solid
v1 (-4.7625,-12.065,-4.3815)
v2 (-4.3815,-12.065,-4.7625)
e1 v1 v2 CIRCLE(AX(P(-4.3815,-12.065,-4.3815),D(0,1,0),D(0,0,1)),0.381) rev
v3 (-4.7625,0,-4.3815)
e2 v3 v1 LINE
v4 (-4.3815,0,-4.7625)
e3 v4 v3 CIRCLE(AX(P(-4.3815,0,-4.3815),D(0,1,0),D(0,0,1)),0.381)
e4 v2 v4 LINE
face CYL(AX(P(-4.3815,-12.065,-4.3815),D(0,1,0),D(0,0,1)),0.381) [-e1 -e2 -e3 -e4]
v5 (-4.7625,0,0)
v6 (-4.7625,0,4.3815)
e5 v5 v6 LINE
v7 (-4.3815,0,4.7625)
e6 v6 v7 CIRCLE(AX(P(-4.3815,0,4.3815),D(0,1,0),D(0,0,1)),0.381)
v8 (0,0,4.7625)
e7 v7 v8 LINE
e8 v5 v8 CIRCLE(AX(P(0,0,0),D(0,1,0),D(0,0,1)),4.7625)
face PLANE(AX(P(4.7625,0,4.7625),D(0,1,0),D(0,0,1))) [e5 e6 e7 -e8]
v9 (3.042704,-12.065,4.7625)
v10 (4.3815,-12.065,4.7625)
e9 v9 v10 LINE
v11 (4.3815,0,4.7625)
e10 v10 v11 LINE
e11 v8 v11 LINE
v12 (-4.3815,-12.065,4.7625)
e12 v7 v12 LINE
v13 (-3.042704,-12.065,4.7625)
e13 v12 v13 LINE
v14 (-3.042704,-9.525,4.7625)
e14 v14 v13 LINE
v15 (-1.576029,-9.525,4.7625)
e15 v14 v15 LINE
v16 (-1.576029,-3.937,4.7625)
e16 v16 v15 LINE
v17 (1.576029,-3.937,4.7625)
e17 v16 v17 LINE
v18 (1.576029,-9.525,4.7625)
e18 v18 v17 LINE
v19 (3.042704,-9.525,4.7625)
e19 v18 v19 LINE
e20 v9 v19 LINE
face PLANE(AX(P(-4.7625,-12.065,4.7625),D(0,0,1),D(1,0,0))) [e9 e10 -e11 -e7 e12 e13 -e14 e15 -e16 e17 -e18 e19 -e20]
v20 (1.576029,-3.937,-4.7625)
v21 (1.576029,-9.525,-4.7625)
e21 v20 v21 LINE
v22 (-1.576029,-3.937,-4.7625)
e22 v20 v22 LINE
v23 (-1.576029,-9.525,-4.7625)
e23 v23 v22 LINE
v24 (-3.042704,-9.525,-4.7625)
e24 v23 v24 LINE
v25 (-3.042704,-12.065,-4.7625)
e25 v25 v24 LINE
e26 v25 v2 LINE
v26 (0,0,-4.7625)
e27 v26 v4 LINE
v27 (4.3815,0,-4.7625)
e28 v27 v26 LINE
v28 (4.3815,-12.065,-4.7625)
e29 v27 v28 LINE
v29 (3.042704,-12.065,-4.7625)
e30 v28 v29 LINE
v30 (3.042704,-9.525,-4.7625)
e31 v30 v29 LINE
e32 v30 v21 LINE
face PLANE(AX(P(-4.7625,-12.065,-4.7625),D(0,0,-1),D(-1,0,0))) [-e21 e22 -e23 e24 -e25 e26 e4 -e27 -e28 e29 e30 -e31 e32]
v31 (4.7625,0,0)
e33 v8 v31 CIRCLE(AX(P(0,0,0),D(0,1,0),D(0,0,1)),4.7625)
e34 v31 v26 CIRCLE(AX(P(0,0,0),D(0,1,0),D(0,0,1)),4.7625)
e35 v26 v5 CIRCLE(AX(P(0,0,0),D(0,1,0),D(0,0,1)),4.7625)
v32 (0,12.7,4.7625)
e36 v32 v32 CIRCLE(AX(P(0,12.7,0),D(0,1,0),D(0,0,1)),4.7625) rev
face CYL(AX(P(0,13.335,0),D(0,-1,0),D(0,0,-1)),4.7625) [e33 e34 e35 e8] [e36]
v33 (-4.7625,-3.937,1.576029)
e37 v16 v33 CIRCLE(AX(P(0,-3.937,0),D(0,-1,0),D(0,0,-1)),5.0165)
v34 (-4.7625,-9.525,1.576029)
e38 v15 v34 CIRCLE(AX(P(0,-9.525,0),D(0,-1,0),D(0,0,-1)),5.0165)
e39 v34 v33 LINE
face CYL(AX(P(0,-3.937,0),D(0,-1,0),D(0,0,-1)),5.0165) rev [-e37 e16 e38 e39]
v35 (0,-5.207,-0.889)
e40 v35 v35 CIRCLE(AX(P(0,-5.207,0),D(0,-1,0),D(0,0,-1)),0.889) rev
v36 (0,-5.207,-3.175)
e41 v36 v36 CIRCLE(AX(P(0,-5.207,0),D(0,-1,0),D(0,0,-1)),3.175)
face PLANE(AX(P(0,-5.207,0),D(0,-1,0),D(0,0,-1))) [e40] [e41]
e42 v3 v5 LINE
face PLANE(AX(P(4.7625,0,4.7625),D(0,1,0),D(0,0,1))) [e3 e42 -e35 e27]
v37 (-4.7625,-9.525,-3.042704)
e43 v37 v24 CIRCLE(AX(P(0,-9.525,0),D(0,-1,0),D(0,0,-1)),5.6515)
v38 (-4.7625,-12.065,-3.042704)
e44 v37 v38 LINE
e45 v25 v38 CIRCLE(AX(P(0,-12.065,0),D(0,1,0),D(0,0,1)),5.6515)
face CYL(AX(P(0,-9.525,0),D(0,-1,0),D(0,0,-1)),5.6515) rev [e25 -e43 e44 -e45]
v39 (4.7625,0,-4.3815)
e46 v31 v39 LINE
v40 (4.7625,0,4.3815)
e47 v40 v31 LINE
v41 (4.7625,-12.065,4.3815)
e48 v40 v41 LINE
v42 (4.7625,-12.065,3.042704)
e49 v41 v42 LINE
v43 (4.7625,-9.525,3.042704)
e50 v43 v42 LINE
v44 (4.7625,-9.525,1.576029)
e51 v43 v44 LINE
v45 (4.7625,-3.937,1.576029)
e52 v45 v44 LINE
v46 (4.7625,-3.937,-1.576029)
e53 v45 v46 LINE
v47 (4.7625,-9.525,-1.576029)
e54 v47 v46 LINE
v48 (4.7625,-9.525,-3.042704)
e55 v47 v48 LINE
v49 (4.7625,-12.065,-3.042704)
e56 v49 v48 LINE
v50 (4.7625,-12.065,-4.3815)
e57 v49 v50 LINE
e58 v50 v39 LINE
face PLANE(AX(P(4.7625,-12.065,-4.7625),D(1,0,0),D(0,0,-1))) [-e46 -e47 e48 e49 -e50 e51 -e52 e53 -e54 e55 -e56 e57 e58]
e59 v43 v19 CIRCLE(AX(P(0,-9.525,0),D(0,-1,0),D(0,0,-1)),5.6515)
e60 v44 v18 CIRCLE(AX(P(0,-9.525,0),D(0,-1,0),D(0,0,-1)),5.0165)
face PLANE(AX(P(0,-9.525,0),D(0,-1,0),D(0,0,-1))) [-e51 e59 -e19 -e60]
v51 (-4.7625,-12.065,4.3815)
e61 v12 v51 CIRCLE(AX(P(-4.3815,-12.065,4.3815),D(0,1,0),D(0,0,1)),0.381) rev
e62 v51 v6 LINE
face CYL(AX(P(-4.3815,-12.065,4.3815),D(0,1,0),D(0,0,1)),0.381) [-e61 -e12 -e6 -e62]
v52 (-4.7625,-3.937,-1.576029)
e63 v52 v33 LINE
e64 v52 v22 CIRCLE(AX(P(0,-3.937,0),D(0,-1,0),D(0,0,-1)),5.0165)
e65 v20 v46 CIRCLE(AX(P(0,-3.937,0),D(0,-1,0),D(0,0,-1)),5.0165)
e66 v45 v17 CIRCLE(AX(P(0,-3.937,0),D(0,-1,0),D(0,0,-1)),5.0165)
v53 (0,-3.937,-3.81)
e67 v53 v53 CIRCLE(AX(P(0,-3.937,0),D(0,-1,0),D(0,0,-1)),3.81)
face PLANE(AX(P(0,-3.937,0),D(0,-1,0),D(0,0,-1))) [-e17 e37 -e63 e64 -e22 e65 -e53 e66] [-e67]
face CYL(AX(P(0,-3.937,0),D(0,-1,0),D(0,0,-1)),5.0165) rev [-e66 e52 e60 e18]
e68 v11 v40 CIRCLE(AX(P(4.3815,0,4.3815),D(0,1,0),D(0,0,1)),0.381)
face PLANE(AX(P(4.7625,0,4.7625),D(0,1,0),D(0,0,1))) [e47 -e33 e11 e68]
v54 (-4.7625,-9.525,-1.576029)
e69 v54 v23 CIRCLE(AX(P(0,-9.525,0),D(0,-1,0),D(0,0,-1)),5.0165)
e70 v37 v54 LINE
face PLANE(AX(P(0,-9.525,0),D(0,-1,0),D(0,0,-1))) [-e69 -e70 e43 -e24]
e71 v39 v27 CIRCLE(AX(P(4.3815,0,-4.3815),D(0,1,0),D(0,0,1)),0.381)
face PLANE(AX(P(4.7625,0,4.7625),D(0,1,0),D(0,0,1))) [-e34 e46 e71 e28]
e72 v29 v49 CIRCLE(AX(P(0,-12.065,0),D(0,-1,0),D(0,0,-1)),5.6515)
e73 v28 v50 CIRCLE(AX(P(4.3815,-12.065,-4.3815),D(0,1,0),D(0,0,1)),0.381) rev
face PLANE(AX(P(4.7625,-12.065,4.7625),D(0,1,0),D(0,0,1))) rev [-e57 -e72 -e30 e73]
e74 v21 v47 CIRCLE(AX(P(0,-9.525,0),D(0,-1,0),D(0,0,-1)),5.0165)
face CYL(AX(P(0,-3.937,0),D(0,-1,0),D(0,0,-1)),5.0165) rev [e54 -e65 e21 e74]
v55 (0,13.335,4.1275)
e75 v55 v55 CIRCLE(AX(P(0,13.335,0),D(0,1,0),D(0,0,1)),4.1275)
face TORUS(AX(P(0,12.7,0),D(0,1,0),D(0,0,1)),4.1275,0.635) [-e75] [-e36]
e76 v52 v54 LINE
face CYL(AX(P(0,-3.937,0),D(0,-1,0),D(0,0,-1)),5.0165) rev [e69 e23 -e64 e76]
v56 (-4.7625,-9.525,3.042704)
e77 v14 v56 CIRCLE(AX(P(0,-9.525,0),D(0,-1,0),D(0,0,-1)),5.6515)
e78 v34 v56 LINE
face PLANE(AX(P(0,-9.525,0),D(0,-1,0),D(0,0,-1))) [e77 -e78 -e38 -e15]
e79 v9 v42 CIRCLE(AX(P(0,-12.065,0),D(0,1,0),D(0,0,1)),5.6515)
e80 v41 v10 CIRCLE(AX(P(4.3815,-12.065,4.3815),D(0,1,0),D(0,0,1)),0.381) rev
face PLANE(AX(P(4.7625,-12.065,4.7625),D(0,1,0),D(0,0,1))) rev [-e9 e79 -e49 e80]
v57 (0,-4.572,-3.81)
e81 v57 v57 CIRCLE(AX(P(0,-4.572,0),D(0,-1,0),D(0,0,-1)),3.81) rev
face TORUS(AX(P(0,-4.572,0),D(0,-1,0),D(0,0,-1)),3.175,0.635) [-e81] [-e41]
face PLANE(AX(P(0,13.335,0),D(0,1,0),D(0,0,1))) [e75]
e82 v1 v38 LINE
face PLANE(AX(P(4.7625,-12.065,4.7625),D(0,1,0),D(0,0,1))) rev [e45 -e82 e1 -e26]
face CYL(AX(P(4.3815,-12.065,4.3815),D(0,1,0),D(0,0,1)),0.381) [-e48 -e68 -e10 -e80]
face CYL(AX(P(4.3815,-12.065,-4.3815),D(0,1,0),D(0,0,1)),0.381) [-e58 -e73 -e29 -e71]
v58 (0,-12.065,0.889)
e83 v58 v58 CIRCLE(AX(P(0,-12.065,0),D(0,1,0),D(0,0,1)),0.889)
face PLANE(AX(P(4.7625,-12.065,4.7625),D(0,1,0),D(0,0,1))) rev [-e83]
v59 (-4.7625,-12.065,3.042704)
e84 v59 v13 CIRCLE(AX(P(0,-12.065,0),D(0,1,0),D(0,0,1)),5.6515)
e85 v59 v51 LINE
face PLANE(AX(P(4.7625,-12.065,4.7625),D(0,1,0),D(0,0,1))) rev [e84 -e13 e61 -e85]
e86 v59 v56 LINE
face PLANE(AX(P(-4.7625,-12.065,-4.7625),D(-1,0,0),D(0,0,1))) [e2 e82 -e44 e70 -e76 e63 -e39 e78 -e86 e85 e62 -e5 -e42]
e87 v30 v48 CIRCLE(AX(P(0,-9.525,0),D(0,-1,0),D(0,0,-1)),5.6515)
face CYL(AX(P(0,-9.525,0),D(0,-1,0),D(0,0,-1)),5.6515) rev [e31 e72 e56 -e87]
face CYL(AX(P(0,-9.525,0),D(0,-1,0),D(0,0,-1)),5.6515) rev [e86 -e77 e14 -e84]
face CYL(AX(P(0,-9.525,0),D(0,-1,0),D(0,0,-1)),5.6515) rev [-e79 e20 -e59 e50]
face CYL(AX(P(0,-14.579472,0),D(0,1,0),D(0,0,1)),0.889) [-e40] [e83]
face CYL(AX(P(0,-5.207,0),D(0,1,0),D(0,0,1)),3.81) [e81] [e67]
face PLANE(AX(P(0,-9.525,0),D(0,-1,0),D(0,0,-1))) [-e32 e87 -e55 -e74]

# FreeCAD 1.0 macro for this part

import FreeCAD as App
import Part
import Sketcher
from FreeCAD import Vector
Q = App.Units.Quantity


def edges_at(feature, points):
    """Names of the edges that pass closest to the given points."""
    edges = feature.Shape.Edges
    near = lambda p: min(range(len(edges)), key=lambda i: edges[i].distToShape(Part.Vertex(*p))[0])
    return sorted({f"Edge{near(p) + 1}" for p in points})


def add_polygon(sketch, points):
    """Adds a closed chain of lines whose ends are joined by coincident constraints."""
    first, n = sketch.GeometryCount, len(points)
    for a, b in zip(points, points[1:] + points[:1]):
        sketch.addGeometry(Part.LineSegment(App.Vector(*a, 0), App.Vector(*b, 0)), False)
    for i in range(n):
        sketch.addConstraint(Sketcher.Constraint("Coincident", first + i, 2, first + (i + 1) % n, 1))

doc = App.newDocument("Part")
body = doc.addObject("PartDesign::Body", "Body")

sketch1 = body.newObject("Sketcher::SketchObject", "Sketch")
sketch1.AttachmentSupport = (doc.getObject("XZ_Plane"), [""])
sketch1.MapMode = "FlatFace"
add_polygon(sketch1, [(-5, -5), (-5, 5), (5, 5), (5, -5)])
sketch1.addConstraint([
    Sketcher.Constraint("Vertical", 0),
    Sketcher.Constraint("Horizontal", 1),
    Sketcher.Constraint("Vertical", 2),
    Sketcher.Constraint("Horizontal", 3),
    Sketcher.Constraint("Symmetric", 0, 2, 2, 2, -1, 1),
    Sketcher.Constraint("Equal", 3, 0),
    Sketcher.Constraint("DistanceX", 1, 1, 1, 2, Q("0.375 in")),
])
pad1 = body.newObject("PartDesign::Pad", "Pad")
pad1.Profile = sketch1
pad1.Length = Q("0.475 in")

sketch2 = body.newObject("Sketcher::SketchObject", "Sketch001")
sketch2.AttachmentSupport = (doc.getObject("XZ_Plane"), [""])
sketch2.MapMode = "FlatFace"
sketch2.addGeometry(Part.Circle(Vector(0, 0, 0), Vector(0, 0, 1), 4.8), False)
sketch2.addConstraint([
    Sketcher.Constraint("Coincident", 0, 3, -1, 1),
    Sketcher.Constraint("Diameter", 0, Q("0.375 in")),
])
pad2 = body.newObject("PartDesign::Pad", "Pad001")
pad2.Profile = sketch2
pad2.Length = Q("0.525 in")
pad2.Reversed = True
doc.recompute()

fillet = body.newObject("PartDesign::Fillet", "Fillet")
fillet.Base = (pad2, edges_at(pad2, [(-4.763, 13.335, 0)]))
fillet.Radius = Q("0.025 in")

sketch3 = body.newObject("Sketcher::SketchObject", "Sketch002")
sketch3.AttachmentSupport = (doc.getObject("XZ_Plane"), [""])
sketch3.MapMode = "FlatFace"
sketch3.AttachmentOffset = App.Placement(Vector(0, 0, 0.475 * 25.4), App.Rotation())
sketch3.addGeometry(Part.Circle(Vector(0, 0, 0), Vector(0, 0, 1), 6), False)
sketch3.addConstraint([
    Sketcher.Constraint("Coincident", 0, 3, -1, 1),
    Sketcher.Constraint("Diameter", 0, Q("0.445 in")),
])
pocket1 = body.newObject("PartDesign::Pocket", "Pocket")
pocket1.Profile = sketch3
pocket1.Length = Q("0.1 in")

sketch4 = body.newObject("Sketcher::SketchObject", "Sketch003")
sketch4.AttachmentSupport = (doc.getObject("XZ_Plane"), [""])
sketch4.MapMode = "FlatFace"
sketch4.AttachmentOffset = App.Placement(Vector(0, 0, 0.375 * 25.4), App.Rotation())
sketch4.addGeometry(Part.Circle(Vector(0, 0, 0), Vector(0, 0, 1), 5), False)
sketch4.addConstraint([
    Sketcher.Constraint("Coincident", 0, 3, -1, 1),
    Sketcher.Constraint("Diameter", 0, Q("0.395 in")),
])
pocket2 = body.newObject("PartDesign::Pocket", "Pocket001")
pocket2.Profile = sketch4
pocket2.Length = Q("0.22 in")

sketch5 = body.newObject("Sketcher::SketchObject", "Sketch004")
sketch5.AttachmentSupport = (doc.getObject("XZ_Plane"), [""])
sketch5.MapMode = "FlatFace"
sketch5.AttachmentOffset = App.Placement(Vector(0, 0, 0.155 * 25.4), App.Rotation())
sketch5.addGeometry(Part.Circle(Vector(0, 0, 0), Vector(0, 0, 1), 3.8), False)
sketch5.addConstraint([
    Sketcher.Constraint("Coincident", 0, 3, -1, 1),
    Sketcher.Constraint("Diameter", 0, Q("0.3 in")),
])
pad3 = body.newObject("PartDesign::Pad", "Pad002")
pad3.Profile = sketch5
pad3.Length = Q("0.05 in")
doc.recompute()

fillet2 = body.newObject("PartDesign::Fillet", "Fillet001")
fillet2.Base = (pad3, edges_at(pad3, [(-3.81, -5.207, 0)]))
fillet2.Radius = Q("0.025 in")

sketch6 = body.newObject("Sketcher::SketchObject", "Sketch005")
sketch6.AttachmentSupport = (doc.getObject("XZ_Plane"), [""])
sketch6.MapMode = "FlatFace"
sketch6.AttachmentOffset = App.Placement(Vector(0, 0, 0.155 * 25.4), App.Rotation())
sketch6.addGeometry(Part.Circle(Vector(0, 0, 0), Vector(0, 0, 1), 0.9), False)
sketch6.addConstraint([
    Sketcher.Constraint("Coincident", 0, 3, -1, 1),
    Sketcher.Constraint("Diameter", 0, Q("0.07 in")),
])
pad4 = body.newObject("PartDesign::Pad", "Pad003")
pad4.Profile = sketch6
pad4.Length = Q("0.32 in")
doc.recompute()

fillet3 = body.newObject("PartDesign::Fillet", "Fillet002")
fillet3.Base = (pad4, edges_at(pad4, [
    (4.763, -6.032, 4.763),
    (-4.763, -6.032, 4.763),
    (-4.763, -6.032, -4.763),
    (4.763, -6.032, -4.763),
]))
fillet3.Radius = Q("0.015 in")

doc.recompute()
